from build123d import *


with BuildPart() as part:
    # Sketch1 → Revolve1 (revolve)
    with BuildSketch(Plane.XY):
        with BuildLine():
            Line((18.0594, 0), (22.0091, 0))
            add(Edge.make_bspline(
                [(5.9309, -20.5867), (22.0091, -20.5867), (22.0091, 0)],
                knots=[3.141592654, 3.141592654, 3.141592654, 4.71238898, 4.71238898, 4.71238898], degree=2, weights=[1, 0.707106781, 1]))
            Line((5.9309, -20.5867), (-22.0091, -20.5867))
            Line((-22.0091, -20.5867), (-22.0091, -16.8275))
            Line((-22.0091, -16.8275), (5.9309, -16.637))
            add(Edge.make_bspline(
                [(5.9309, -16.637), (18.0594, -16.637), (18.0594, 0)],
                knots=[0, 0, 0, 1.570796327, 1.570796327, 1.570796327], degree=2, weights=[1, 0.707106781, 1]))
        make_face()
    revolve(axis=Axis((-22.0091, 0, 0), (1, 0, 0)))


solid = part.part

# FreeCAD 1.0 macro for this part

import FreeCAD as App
import Part
import Sketcher
Q = App.Units.Quantity

doc = App.newDocument("Part")
body = doc.addObject("PartDesign::Body", "Body")

sketch1 = doc.addObject("Sketcher::SketchObject", "Sketch")
body.addObject(sketch1)
sketch1.AttachmentSupport = (doc.XY_Plane, [""])
sketch1.MapMode = "FlatFace"
sketch1.addGeometry([
    Part.LineSegment(App.Vector(22.0091, 0, 0), App.Vector(18.0594, 0, 0)),
    Part.BSplineCurve([App.Vector(5.9309, -16.637, 0), App.Vector(18.0594, -16.637, 0), App.Vector(18.0594, 0, 0)], [3, 3], [0, 1.570796327], False, 2, [1, 0.707106781, 1], False),
    Part.LineSegment(App.Vector(5.9309, -16.637, 0), App.Vector(-22.0091, -16.8275, 0)),
    Part.LineSegment(App.Vector(-22.0091, -16.8275, 0), App.Vector(-22.0091, -20.5867, 0)),
    Part.LineSegment(App.Vector(-22.0091, -20.5867, 0), App.Vector(5.9309, -20.5867, 0)),
    Part.BSplineCurve([App.Vector(5.9309, -20.5867, 0), App.Vector(22.0091, -20.5867, 0), App.Vector(22.0091, 0, 0)], [3, 3], [3.141592654, 4.71238898], False, 2, [1, 0.707106781, 1], False),
], False)
sketch1.addConstraint([
    Sketcher.Constraint("Block", 1),
    Sketcher.Constraint("Block", 5),
    Sketcher.Constraint("Coincident", 0, 2, 1, 2),
    Sketcher.Constraint("Coincident", 1, 1, 2, 1),
    Sketcher.Constraint("Coincident", 2, 2, 3, 1),
    Sketcher.Constraint("Coincident", 3, 2, 4, 1),
    Sketcher.Constraint("Coincident", 4, 2, 5, 1),
    Sketcher.Constraint("Coincident", 5, 2, 0, 1),
    Sketcher.Constraint("Vertical", 3),
    Sketcher.Constraint("Horizontal", 4),
    Sketcher.Constraint("DistanceX", 4, 1, 4, 2, Q("1.1 in")),
    Sketcher.Constraint("DistanceY", 3, 2, 3, 1, Q("0.148 in")),
])
revolution = doc.addObject("PartDesign::Revolution", "Revolution")
body.addObject(revolution)
revolution.Profile = sketch1
revolution.ReferenceAxis = (sketch1, ["H_Axis"])
revolution.Angle = 360

doc.recompute()
